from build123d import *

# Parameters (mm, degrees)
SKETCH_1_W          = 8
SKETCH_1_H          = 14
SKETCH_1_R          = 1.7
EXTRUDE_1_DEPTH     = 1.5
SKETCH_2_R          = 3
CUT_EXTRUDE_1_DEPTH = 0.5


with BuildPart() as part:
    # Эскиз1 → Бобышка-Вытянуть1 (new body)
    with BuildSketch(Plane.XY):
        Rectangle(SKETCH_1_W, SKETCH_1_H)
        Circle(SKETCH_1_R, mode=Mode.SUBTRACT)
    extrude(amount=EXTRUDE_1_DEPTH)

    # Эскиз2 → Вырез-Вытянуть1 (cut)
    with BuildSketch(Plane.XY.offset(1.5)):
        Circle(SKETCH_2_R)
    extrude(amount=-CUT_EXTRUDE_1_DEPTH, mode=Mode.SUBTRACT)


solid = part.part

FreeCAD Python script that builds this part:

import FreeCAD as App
import Part
import Sketcher
from FreeCAD import Vector

doc = App.newDocument("Part")
body = doc.addObject("PartDesign::Body", "Body")

# Sketch on XY plane
sketch1 = body.newObject("Sketcher::SketchObject", "Sketch")
sketch1.AttachmentSupport = (doc.getObject("XY_Plane"), [""])
sketch1.MapMode = "FlatFace"
sketch1.addGeometry([
    Part.LineSegment(Vector(-4, 7, 0), Vector(-4, -7, 0)),  # 0
    Part.LineSegment(Vector(-4, -7, 0), Vector(4, -7, 0)),  # 1
    Part.LineSegment(Vector(4, -7, 0), Vector(4, 7, 0)),  # 2
    Part.LineSegment(Vector(4, 7, 0), Vector(-4, 7, 0)),  # 3
    Part.Circle(Vector(0, 0, 0), Vector(0, 0, 1), 1.7),  # 4
], False)
sketch1.addConstraint([
    Sketcher.Constraint("Coincident", 0, 2, 1, 1),
    Sketcher.Constraint("Coincident", 1, 2, 2, 1),
    Sketcher.Constraint("Coincident", 2, 2, 3, 1),
    Sketcher.Constraint("Coincident", 3, 2, 0, 1),
    Sketcher.Constraint("Vertical", 0),
    Sketcher.Constraint("Horizontal", 1),
    Sketcher.Constraint("Vertical", 2),
    Sketcher.Constraint("Horizontal", 3),
    Sketcher.Constraint("Coincident", 4, 3, -1, 1),
    Sketcher.Constraint("Symmetric", 0, 2, 2, 2, -1, 1),
    Sketcher.Constraint("Diameter", 4, 3.4),
    Sketcher.Constraint("DistanceX", 1, 1, 1, 2, 8.0),
    Sketcher.Constraint("DistanceY", 0, 2, 0, 1, 14.0),
])
pad1 = body.newObject("PartDesign::Pad", "Pad")
pad1.Profile = sketch1
pad1.Length = 1.5

# Sketch on XY plane
sketch2 = body.newObject("Sketcher::SketchObject", "Sketch001")
sketch2.AttachmentSupport = (doc.getObject("XY_Plane"), [""])
sketch2.MapMode = "FlatFace"
sketch2.AttachmentOffset = App.Placement(Vector(0, 0, 1.5), App.Rotation())
sketch2.addGeometry(Part.Circle(Vector(0, 0, 0), Vector(0, 0, 1), 3), False)
sketch2.addConstraint([
    Sketcher.Constraint("Coincident", 0, 3, -1, 1),
    Sketcher.Constraint("Diameter", 0, 6.0),
])
pocket1 = body.newObject("PartDesign::Pocket", "Pocket")
pocket1.Profile = sketch2
pocket1.Length = 0.5

doc.recompute()
